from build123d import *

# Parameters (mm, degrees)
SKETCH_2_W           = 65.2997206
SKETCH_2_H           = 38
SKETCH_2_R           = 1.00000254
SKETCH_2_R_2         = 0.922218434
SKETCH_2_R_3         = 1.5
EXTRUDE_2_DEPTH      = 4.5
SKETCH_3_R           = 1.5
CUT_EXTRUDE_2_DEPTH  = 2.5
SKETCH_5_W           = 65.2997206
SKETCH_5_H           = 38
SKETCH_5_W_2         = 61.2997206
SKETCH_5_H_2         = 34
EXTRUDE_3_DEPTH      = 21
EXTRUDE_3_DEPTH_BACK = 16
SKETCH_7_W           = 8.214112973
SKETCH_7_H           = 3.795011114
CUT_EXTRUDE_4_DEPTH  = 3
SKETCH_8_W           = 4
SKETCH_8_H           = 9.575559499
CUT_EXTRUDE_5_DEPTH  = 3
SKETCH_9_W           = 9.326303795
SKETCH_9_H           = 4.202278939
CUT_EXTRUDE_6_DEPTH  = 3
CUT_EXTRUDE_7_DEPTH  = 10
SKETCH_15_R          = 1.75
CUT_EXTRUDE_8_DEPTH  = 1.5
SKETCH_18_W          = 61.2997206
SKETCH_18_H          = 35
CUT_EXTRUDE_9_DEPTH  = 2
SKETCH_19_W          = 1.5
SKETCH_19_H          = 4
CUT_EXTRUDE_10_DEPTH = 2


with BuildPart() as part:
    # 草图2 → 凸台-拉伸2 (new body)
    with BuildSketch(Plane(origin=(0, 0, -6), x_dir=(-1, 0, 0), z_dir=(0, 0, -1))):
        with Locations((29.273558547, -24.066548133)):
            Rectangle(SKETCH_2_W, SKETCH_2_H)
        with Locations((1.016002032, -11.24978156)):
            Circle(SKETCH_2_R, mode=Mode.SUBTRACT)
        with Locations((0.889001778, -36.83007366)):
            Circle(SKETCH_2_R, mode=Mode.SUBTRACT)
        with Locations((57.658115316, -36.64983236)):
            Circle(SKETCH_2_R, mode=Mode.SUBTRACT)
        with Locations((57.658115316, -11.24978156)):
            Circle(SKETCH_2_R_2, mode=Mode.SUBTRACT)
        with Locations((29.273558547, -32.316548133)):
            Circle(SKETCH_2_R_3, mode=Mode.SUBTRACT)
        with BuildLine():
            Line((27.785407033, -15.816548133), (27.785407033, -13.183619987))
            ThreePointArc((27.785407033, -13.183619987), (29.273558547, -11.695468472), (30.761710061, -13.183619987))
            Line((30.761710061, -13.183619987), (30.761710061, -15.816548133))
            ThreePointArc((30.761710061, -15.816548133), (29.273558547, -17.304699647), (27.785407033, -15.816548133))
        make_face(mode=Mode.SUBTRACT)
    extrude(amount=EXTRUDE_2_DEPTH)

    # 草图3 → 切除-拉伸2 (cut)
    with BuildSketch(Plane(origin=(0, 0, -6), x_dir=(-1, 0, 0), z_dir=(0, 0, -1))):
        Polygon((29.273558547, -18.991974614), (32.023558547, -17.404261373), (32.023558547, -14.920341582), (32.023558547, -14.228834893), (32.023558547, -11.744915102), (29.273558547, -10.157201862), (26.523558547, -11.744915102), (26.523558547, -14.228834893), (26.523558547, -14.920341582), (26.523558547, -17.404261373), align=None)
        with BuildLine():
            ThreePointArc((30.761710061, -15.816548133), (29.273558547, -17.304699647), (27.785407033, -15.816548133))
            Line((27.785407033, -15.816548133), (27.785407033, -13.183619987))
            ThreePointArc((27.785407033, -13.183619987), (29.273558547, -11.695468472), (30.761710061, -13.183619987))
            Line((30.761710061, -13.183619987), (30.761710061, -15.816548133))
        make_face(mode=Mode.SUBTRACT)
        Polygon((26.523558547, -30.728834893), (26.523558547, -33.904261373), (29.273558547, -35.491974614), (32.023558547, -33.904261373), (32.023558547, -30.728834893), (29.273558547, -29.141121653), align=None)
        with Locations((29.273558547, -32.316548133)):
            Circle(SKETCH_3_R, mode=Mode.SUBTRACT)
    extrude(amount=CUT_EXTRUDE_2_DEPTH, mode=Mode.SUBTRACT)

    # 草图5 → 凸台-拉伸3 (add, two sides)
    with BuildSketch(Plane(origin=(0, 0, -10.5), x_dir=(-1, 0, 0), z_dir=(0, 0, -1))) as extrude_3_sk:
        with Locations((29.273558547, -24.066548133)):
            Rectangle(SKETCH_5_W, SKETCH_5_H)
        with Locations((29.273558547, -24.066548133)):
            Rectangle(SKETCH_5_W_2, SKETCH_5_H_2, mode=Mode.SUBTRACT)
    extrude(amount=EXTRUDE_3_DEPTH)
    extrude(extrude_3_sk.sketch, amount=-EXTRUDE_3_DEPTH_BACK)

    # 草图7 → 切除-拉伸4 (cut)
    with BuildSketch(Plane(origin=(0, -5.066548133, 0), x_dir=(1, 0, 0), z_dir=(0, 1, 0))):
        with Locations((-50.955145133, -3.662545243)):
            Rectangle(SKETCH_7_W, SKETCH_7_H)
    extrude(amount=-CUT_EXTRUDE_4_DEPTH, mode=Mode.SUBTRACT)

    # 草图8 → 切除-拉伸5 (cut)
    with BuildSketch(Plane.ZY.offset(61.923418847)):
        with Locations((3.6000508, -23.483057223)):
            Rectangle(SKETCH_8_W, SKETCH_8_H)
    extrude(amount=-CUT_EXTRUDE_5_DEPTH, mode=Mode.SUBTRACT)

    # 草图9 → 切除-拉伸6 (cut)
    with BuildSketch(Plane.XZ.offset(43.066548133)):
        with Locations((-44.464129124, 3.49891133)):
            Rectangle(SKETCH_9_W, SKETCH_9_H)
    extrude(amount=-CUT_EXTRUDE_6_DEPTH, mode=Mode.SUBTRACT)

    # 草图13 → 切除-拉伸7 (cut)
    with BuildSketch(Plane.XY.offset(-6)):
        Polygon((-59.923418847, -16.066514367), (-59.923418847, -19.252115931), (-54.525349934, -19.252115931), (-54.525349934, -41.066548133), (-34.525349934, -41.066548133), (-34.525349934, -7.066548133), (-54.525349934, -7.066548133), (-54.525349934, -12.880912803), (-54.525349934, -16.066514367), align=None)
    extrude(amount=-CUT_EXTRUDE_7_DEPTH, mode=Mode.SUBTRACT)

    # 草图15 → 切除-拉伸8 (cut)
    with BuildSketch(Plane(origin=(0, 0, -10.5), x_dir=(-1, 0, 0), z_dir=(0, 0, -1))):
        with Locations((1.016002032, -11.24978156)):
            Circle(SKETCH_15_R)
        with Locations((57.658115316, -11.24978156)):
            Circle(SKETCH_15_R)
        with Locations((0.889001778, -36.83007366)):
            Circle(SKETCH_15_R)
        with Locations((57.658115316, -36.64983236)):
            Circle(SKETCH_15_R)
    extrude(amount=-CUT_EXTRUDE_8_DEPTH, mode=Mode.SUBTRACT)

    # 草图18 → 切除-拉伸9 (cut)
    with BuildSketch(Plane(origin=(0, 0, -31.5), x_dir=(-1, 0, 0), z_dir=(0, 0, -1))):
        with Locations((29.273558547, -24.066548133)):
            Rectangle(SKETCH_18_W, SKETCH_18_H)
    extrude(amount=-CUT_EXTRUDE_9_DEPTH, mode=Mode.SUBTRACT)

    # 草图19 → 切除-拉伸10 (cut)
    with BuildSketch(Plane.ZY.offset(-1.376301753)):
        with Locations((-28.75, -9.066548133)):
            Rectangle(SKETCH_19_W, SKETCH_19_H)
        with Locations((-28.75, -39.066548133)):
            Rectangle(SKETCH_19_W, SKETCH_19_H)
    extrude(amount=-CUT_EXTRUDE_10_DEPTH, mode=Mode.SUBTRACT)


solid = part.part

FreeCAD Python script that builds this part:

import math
import FreeCAD as App
import Part
import Sketcher

V = App.Vector
Q = App.Units.Quantity


def add_polygon(sketch, points):
    """Adds a closed chain of lines whose ends are joined by coincident constraints."""
    first, n = sketch.GeometryCount, len(points)
    for a, b in zip(points, points[1:] + points[:1]):
        sketch.addGeometry(Part.LineSegment(App.Vector(*a, 0), App.Vector(*b, 0)), False)
    for i in range(n):
        sketch.addConstraint(Sketcher.Constraint("Coincident", first + i, 2, first + (i + 1) % n, 1))

doc = App.newDocument("Part")
body = doc.addObject("PartDesign::Body", "Body")

# Sketch on XY plane
sketch1 = body.newObject("Sketcher::SketchObject", "Sketch")
sketch1.AttachmentSupport = (doc.getObject("XY_Plane"), [""])
sketch1.MapMode = "FlatFace"
sketch1.AttachmentOffset = App.Placement(V(0, 0, -6), App.Rotation())
add_polygon(sketch1, [(3.4, -5.1), (3.4, -43.1), (-61.9, -43.1), (-61.9, -5.1)])  # lines 0-3
sketch1.addGeometry(Part.Circle(V(-0.9, -36.8, 0), V(0, 0, 1), 1), False)  # 4
sketch1.addGeometry(Part.Circle(V(-29.3, -32.3, 0), V(0, 0, 1), 1.5), False)  # 5
sketch1.addGeometry(Part.Circle(V(-57.7, -36.6, 0), V(0, 0, 1), 1), False)  # 6
sketch1.addGeometry(Part.Circle(V(-1, -11.2, 0), V(0, 0, 1), 1), False)  # 7
sketch1.addGeometry(Part.ArcOfCircle(Part.Circle(V(-29.3, -15.8, 0), V(0, 0, 1), 1.5), math.radians(180), math.radians(360)), False)  # 8
sketch1.addGeometry(Part.LineSegment(V(-27.8, -15.8, 0), V(-27.8, -13.2, 0)), False)  # 9
sketch1.addGeometry(Part.ArcOfCircle(Part.Circle(V(-29.3, -13.2, 0), V(0, 0, 1), 1.5), math.radians(0), math.radians(180)), False)  # 10
sketch1.addGeometry(Part.LineSegment(V(-30.8, -13.2, 0), V(-30.8, -15.8, 0)), False)  # 11
sketch1.addGeometry(Part.Circle(V(-57.7, -11.2, 0), V(0, 0, 1), 0.9), False)  # 12
sketch1.addConstraint([
    Sketcher.Constraint("Tangent", 8, 2, 9, 1),
    Sketcher.Constraint("Tangent", 9, 2, 10, 1),
    Sketcher.Constraint("Tangent", 10, 2, 11, 1),
    Sketcher.Constraint("Tangent", 11, 2, 8, 1),
    Sketcher.Constraint("Vertical", 0),
    Sketcher.Constraint("Horizontal", 1),
    Sketcher.Constraint("Vertical", 2),
    Sketcher.Constraint("Horizontal", 3),
    Sketcher.Constraint("Vertical", 9),
    Sketcher.Constraint("Vertical", 11),
    Sketcher.Constraint("Equal", 4, 6),
    Sketcher.Constraint("Equal", 6, 7),
    Sketcher.Constraint("Horizontal", 7, 3, 12, 3),
    Sketcher.Constraint("Vertical", 5, 3, 8, 3),
    Sketcher.Constraint("Vertical", 6, 3, 12, 3),
    Sketcher.Constraint("Diameter", 5, 3.0),
    Sketcher.Constraint("DistanceY", 0, 2, 0, 1, 38.0),
    Sketcher.Constraint("DistanceY", 5, 3, 8, 3, 16.5),
    Sketcher.Constraint("Radius", 8, 1.488152),
    Sketcher.Constraint("DistanceY", 0, 2, 5, 3, 10.75),
    Sketcher.Constraint("Diameter", 4, 2.000005),
    Sketcher.Constraint("Diameter", 12, 1.844437),
    Sketcher.Constraint("DistanceX", 4, 3, -1, 1, 0.889002),
    Sketcher.Constraint("DistanceX", 7, 3, 4, 3, 0.127),
    Sketcher.Constraint("DistanceX", 1, 2, 1, 1, 65.299721),
    Sketcher.Constraint("DistanceY", 9, 1, 9, 2, 2.632928),
    Sketcher.Constraint("DistanceX", -1, 1, 0, 2, 3.376302),
    Sketcher.Constraint("DistanceX", 5, 3, -1, 1, 29.273559),
    Sketcher.Constraint("DistanceY", 5, 3, -1, 1, 32.316548),
    Sketcher.Constraint("DistanceY", 7, 3, -1, 1, 11.249782),
    Sketcher.Constraint("DistanceY", 4, 3, 6, 3, 0.180241),
    Sketcher.Constraint("DistanceY", 6, 3, 7, 3, 25.400051),
    Sketcher.Constraint("DistanceX", 12, 3, 8, 2, 29.872708),
])
pad1 = body.newObject("PartDesign::Pad", "Pad")
pad1.Profile = sketch1
pad1.Length = 4.5
pad1.Reversed = True

# Sketch on XY plane
sketch2 = body.newObject("Sketcher::SketchObject", "Sketch001")
sketch2.AttachmentSupport = (doc.getObject("XY_Plane"), [""])
sketch2.MapMode = "FlatFace"
sketch2.AttachmentOffset = App.Placement(V(0, 0, -6), App.Rotation())
add_polygon(sketch2, [(-29.3, -19), (-32, -17.4), (-32, -11.7), (-29.3, -10.2), (-26.5, -11.7), (-26.5, -17.4)])  # lines 0-5
sketch2.addGeometry(Part.LineSegment(V(-30.8, -13.2, 0), V(-30.8, -15.8, 0)), False)  # 6
sketch2.addGeometry(Part.ArcOfCircle(Part.Circle(V(-29.3, -15.8, 0), V(0, 0, 1), 1.5), math.radians(180), math.radians(360)), False)  # 7
sketch2.addGeometry(Part.LineSegment(V(-27.8, -15.8, 0), V(-27.8, -13.2, 0)), False)  # 8
sketch2.addGeometry(Part.ArcOfCircle(Part.Circle(V(-29.3, -13.2, 0), V(0, 0, 1), 1.5), math.radians(0), math.radians(180)), False)  # 9
add_polygon(sketch2, [(-26.5, -30.7), (-26.5, -33.9), (-29.3, -35.5), (-32, -33.9), (-32, -30.7), (-29.3, -29.1)])  # lines 10-15
sketch2.addGeometry(Part.Circle(V(-29.3, -32.3, 0), V(0, 0, 1), 1.5), False)  # 16
sketch2.addConstraint([
    Sketcher.Constraint("Tangent", 6, 2, 7, 1),
    Sketcher.Constraint("Tangent", 7, 2, 8, 1),
    Sketcher.Constraint("Tangent", 8, 2, 9, 1),
    Sketcher.Constraint("Tangent", 9, 2, 6, 1),
    Sketcher.Constraint("Vertical", 1),
    Sketcher.Constraint("Vertical", 4),
    Sketcher.Constraint("Vertical", 6),
    Sketcher.Constraint("Vertical", 8),
    Sketcher.Constraint("Vertical", 10),
    Sketcher.Constraint("Vertical", 13),
    Sketcher.Constraint("Parallel", 0, 3),
    Sketcher.Constraint("Parallel", 2, 5),
    Sketcher.Constraint("Parallel", 5, 11),
    Sketcher.Constraint("Parallel", 3, 12),
    Sketcher.Constraint("Parallel", 11, 14),
    Sketcher.Constraint("Parallel", 12, 15),
    Sketcher.Constraint("Horizontal", 1, 2, 3, 2),
    Sketcher.Constraint("Horizontal", 0, 2, 4, 2),
    Sketcher.Constraint("Horizontal", 10, 2, 12, 2),
    Sketcher.Constraint("Horizontal", 13, 2, 15, 2),
    Sketcher.Constraint("Vertical", 9, 3, 16, 3),
    Sketcher.Constraint("Vertical", 16, 3, 2, 2),
    Sketcher.Constraint("Vertical", 2, 2, 5, 2),
    Sketcher.Constraint("Vertical", 4, 2, 10, 2),
    Sketcher.Constraint("Vertical", 5, 2, 11, 2),
    Sketcher.Constraint("Diameter", 16, 3.0),
    Sketcher.Constraint("Angle", 0, Q("150 deg")),
    Sketcher.Constraint("DistanceY", 16, 3, 7, 3, 16.5),
    Sketcher.Constraint("DistanceX", 1, 2, 3, 2, 5.5),
    Sketcher.Constraint("DistanceY", 10, 2, 4, 2, 16.5),
    Sketcher.Constraint("Radius", 7, 1.488152),
    Sketcher.Constraint("DistanceY", 6, 2, 6, 1, 2.632928),
    Sketcher.Constraint("DistanceY", 2, 2, -1, 1, 10.157202),
    Sketcher.Constraint("DistanceY", 1, 1, 1, 2, 5.659346),
    Sketcher.Constraint("DistanceY", 10, 2, 10, 1, 3.175426),
    Sketcher.Constraint("DistanceX", 7, 3, -1, 1, 29.273559),
    Sketcher.Constraint("DistanceY", 7, 3, -1, 1, 15.816548),
])
pocket1 = body.newObject("PartDesign::Pocket", "Pocket")
pocket1.Profile = sketch2
pocket1.Length = 2.5

# Sketch on XY plane
sketch3 = body.newObject("Sketcher::SketchObject", "Sketch002")
sketch3.AttachmentSupport = (doc.getObject("XY_Plane"), [""])
sketch3.MapMode = "FlatFace"
sketch3.AttachmentOffset = App.Placement(V(0, 0, -10.5), App.Rotation())
add_polygon(sketch3, [(3, -5), (3, -43), (-62, -43), (-62, -5)])  # lines 0-3
add_polygon(sketch3, [(-60, -41), (1, -41), (1, -7), (-60, -7)])  # lines 4-7
sketch3.addConstraint([
    Sketcher.Constraint("Vertical", 0),
    Sketcher.Constraint("Horizontal", 1),
    Sketcher.Constraint("Vertical", 2),
    Sketcher.Constraint("Horizontal", 3),
    Sketcher.Constraint("Horizontal", 4),
    Sketcher.Constraint("Vertical", 5),
    Sketcher.Constraint("Horizontal", 6),
    Sketcher.Constraint("Vertical", 7),
    Sketcher.Constraint("DistanceY", 0, 2, 0, 1, 38.0),
    Sketcher.Constraint("DistanceY", 5, 1, 5, 2, 34.0),
    Sketcher.Constraint("DistanceX", 4, 2, 0, 2, 2.0),
    Sketcher.Constraint("DistanceY", 0, 2, 4, 2, 2.0),
    Sketcher.Constraint("DistanceX", 2, 2, 6, 2, 2.0),
    Sketcher.Constraint("DistanceX", 1, 2, 1, 1, 65.299721),
    Sketcher.Constraint("DistanceX", -1, 1, 0, 2, 3.376302),
    Sketcher.Constraint("DistanceY", 0, 2, -1, 1, 43.066548),
])
pad2 = body.newObject("PartDesign::Pad", "Pad001")
pad2.Profile = sketch3
pad2.Type = "TwoLengths"
pad2.Length = 21
pad2.Length2 = 16
pad2.Reversed = True

# Sketch on XZ plane
sketch4 = body.newObject("Sketcher::SketchObject", "Sketch003")
sketch4.AttachmentSupport = (doc.getObject("XZ_Plane"), [""])
sketch4.MapMode = "FlatFace"
sketch4.AttachmentOffset = App.Placement(V(0, 0, 5.066548), App.Rotation())
add_polygon(sketch4, [(-55.1, 1.8), (-55.1, 5.6), (-46.8, 5.6), (-46.8, 1.8)])  # lines 0-3
sketch4.addConstraint([
    Sketcher.Constraint("Vertical", 0),
    Sketcher.Constraint("Horizontal", 1),
    Sketcher.Constraint("Vertical", 2),
    Sketcher.Constraint("Horizontal", 3),
    Sketcher.Constraint("DistanceY", 0, 1, 0, 2, 3.795011),
    Sketcher.Constraint("DistanceX", 0, 2, -1, 1, 55.062202),
    Sketcher.Constraint("DistanceX", 1, 1, 1, 2, 8.214113),
    Sketcher.Constraint("DistanceY", -1, 1, 0, 2, 5.560051),
])
pocket2 = body.newObject("PartDesign::Pocket", "Pocket001")
pocket2.Profile = sketch4
pocket2.Length = 3
pocket2.Reversed = True

# Sketch on YZ plane
sketch5 = body.newObject("Sketcher::SketchObject", "Sketch004")
sketch5.AttachmentSupport = (doc.getObject("YZ_Plane"), [""])
sketch5.MapMode = "FlatFace"
sketch5.AttachmentOffset = App.Placement(V(0, 0, -61.923419), App.Rotation())
add_polygon(sketch5, [(-18.7, 1.6), (-28.3, 1.6), (-28.3, 5.6), (-18.7, 5.6)])  # lines 0-3
sketch5.addConstraint([
    Sketcher.Constraint("Horizontal", 0),
    Sketcher.Constraint("Vertical", 1),
    Sketcher.Constraint("Horizontal", 2),
    Sketcher.Constraint("Vertical", 3),
    Sketcher.Constraint("DistanceY", 1, 1, 1, 2, 4.0),
    Sketcher.Constraint("DistanceX", 0, 2, 0, 1, 9.575559),
    Sketcher.Constraint("DistanceY", -1, 1, 0, 2, 1.600051),
    Sketcher.Constraint("DistanceX", 0, 2, -1, 1, 28.270837),
])
pocket3 = body.newObject("PartDesign::Pocket", "Pocket002")
pocket3.Profile = sketch5
pocket3.Length = 3
pocket3.Reversed = True

# Sketch on XZ plane
sketch6 = body.newObject("Sketcher::SketchObject", "Sketch005")
sketch6.AttachmentSupport = (doc.getObject("XZ_Plane"), [""])
sketch6.MapMode = "FlatFace"
sketch6.AttachmentOffset = App.Placement(V(0, 0, 43.066548), App.Rotation())
add_polygon(sketch6, [(-49.1, 5.6), (-49.1, 1.4), (-39.8, 1.4), (-39.8, 5.6)])  # lines 0-3
sketch6.addConstraint([
    Sketcher.Constraint("Vertical", 0),
    Sketcher.Constraint("Horizontal", 1),
    Sketcher.Constraint("Vertical", 2),
    Sketcher.Constraint("Horizontal", 3),
    Sketcher.Constraint("DistanceY", 0, 2, 0, 1, 4.202279),
    Sketcher.Constraint("DistanceX", 1, 1, 1, 2, 9.326304),
    Sketcher.Constraint("DistanceX", 0, 2, -1, 1, 49.127281),
    Sketcher.Constraint("DistanceY", -1, 1, 0, 2, 1.397772),
])
pocket4 = body.newObject("PartDesign::Pocket", "Pocket003")
pocket4.Profile = sketch6
pocket4.Length = 3

# Sketch on XY plane
sketch7 = body.newObject("Sketcher::SketchObject", "Sketch006")
sketch7.AttachmentSupport = (doc.getObject("XY_Plane"), [""])
sketch7.MapMode = "FlatFace"
sketch7.AttachmentOffset = App.Placement(V(0, 0, -6), App.Rotation())
add_polygon(sketch7, [(-59.9, -16.1), (-59.9, -19.3), (-54.5, -19.3), (-54.5, -41.1), (-34.5, -41.1), (-34.5, -7.1), (-54.5, -7.1), (-54.5, -16.1)])  # lines 0-7
sketch7.addConstraint([
    Sketcher.Constraint("Vertical", 0),
    Sketcher.Constraint("Horizontal", 1),
    Sketcher.Constraint("Vertical", 2),
    Sketcher.Constraint("Horizontal", 3),
    Sketcher.Constraint("Vertical", 4),
    Sketcher.Constraint("Horizontal", 5),
    Sketcher.Constraint("Vertical", 6),
    Sketcher.Constraint("Horizontal", 7),
    Sketcher.Constraint("Vertical", 2, 2, 5, 2),
    Sketcher.Constraint("DistanceX", 3, 1, 3, 2, 20.0),
    Sketcher.Constraint("DistanceY", 4, 1, 4, 2, 34.0),
    Sketcher.Constraint("DistanceY", 0, 2, 0, 1, 3.185602),
    Sketcher.Constraint("DistanceX", 1, 1, 1, 2, 5.398069),
    Sketcher.Constraint("DistanceY", 2, 2, 2, 1, 21.814432),
    Sketcher.Constraint("DistanceX", 0, 2, -1, 1, 59.923419),
    Sketcher.Constraint("DistanceY", 2, 2, -1, 1, 41.066548),
])
pocket5 = body.newObject("PartDesign::Pocket", "Pocket004")
pocket5.Profile = sketch7
pocket5.Length = 10

# Sketch on XY plane
sketch8 = body.newObject("Sketcher::SketchObject", "Sketch007")
sketch8.AttachmentSupport = (doc.getObject("XY_Plane"), [""])
sketch8.MapMode = "FlatFace"
sketch8.AttachmentOffset = App.Placement(V(0, 0, -10.5), App.Rotation())
sketch8.addGeometry([
    Part.Circle(V(-1, -11.2, 0), V(0, 0, 1), 1.8),
    Part.Circle(V(-57.7, -11.2, 0), V(0, 0, 1), 1.8),
    Part.Circle(V(-0.9, -36.8, 0), V(0, 0, 1), 1.8),
    Part.Circle(V(-57.7, -36.6, 0), V(0, 0, 1), 1.8),
], False)
sketch8.addConstraint([
    Sketcher.Constraint("Equal", 0, 1),
    Sketcher.Constraint("Equal", 1, 2),
    Sketcher.Constraint("Equal", 2, 3),
    Sketcher.Constraint("Horizontal", 0, 3, 1, 3),
    Sketcher.Constraint("Vertical", 1, 3, 3, 3),
    Sketcher.Constraint("Diameter", 0, 3.5),
    Sketcher.Constraint("DistanceX", 2, 3, -1, 1, 0.889002),
    Sketcher.Constraint("DistanceX", 0, 3, 2, 3, 0.127),
    Sketcher.Constraint("DistanceY", 0, 3, -1, 1, 11.249782),
    Sketcher.Constraint("DistanceY", 3, 3, 1, 3, 25.400051),
    Sketcher.Constraint("DistanceY", 2, 3, 3, 3, 0.180241),
    Sketcher.Constraint("DistanceX", 1, 3, -1, 1, 57.658115),
])
pocket6 = body.newObject("PartDesign::Pocket", "Pocket005")
pocket6.Profile = sketch8
pocket6.Length = 1.5
pocket6.Reversed = True

# Sketch on XY plane
sketch9 = body.newObject("Sketcher::SketchObject", "Sketch008")
sketch9.AttachmentSupport = (doc.getObject("XY_Plane"), [""])
sketch9.MapMode = "FlatFace"
sketch9.AttachmentOffset = App.Placement(V(0, 0, -31.5), App.Rotation())
add_polygon(sketch9, [(1, -7), (1, -42), (-60, -42), (-60, -7)])  # lines 0-3
sketch9.addConstraint([
    Sketcher.Constraint("Vertical", 0),
    Sketcher.Constraint("Horizontal", 1),
    Sketcher.Constraint("Vertical", 2),
    Sketcher.Constraint("Horizontal", 3),
    Sketcher.Constraint("DistanceY", 0, 2, 0, 1, 35.0),
    Sketcher.Constraint("DistanceX", 1, 2, 1, 1, 61.299721),
    Sketcher.Constraint("DistanceX", -1, 1, 0, 2, 1.376302),
    Sketcher.Constraint("DistanceY", 0, 2, -1, 1, 41.566548),
])
pocket7 = body.newObject("PartDesign::Pocket", "Pocket006")
pocket7.Profile = sketch9
pocket7.Length = 2
pocket7.Reversed = True

# Sketch on YZ plane
sketch10 = body.newObject("Sketcher::SketchObject", "Sketch009")
sketch10.AttachmentSupport = (doc.getObject("YZ_Plane"), [""])
sketch10.MapMode = "FlatFace"
sketch10.AttachmentOffset = App.Placement(V(0, 0, 1.376302), App.Rotation())
add_polygon(sketch10, [(-7.1, -29.5), (-11.1, -29.5), (-11.1, -28), (-7.1, -28)])  # lines 0-3
add_polygon(sketch10, [(-37.1, -29.5), (-41.1, -29.5), (-41.1, -28), (-37.1, -28)])  # lines 4-7
sketch10.addConstraint([
    Sketcher.Constraint("Horizontal", 0),
    Sketcher.Constraint("Vertical", 1),
    Sketcher.Constraint("Horizontal", 2),
    Sketcher.Constraint("Vertical", 3),
    Sketcher.Constraint("Horizontal", 4),
    Sketcher.Constraint("Vertical", 5),
    Sketcher.Constraint("Horizontal", 6),
    Sketcher.Constraint("Vertical", 7),
    Sketcher.Constraint("Horizontal", 3, 2, 4, 2),
    Sketcher.Constraint("Horizontal", 2, 2, 5, 2),
    Sketcher.Constraint("Equal", 2, 4),
    Sketcher.Constraint("DistanceX", 0, 2, 0, 1, 4.0),
    Sketcher.Constraint("DistanceY", 1, 1, 1, 2, 1.5),
    Sketcher.Constraint("DistanceY", 1, 2, -1, 1, 28.0),
    Sketcher.Constraint("DistanceX", 4, 2, 0, 2, 30.0),
    Sketcher.Constraint("DistanceX", 0, 2, -1, 1, 11.066548),
])
pocket8 = body.newObject("PartDesign::Pocket", "Pocket007")
pocket8.Profile = sketch10
pocket8.Length = 2
pocket8.Reversed = True

doc.recompute()
